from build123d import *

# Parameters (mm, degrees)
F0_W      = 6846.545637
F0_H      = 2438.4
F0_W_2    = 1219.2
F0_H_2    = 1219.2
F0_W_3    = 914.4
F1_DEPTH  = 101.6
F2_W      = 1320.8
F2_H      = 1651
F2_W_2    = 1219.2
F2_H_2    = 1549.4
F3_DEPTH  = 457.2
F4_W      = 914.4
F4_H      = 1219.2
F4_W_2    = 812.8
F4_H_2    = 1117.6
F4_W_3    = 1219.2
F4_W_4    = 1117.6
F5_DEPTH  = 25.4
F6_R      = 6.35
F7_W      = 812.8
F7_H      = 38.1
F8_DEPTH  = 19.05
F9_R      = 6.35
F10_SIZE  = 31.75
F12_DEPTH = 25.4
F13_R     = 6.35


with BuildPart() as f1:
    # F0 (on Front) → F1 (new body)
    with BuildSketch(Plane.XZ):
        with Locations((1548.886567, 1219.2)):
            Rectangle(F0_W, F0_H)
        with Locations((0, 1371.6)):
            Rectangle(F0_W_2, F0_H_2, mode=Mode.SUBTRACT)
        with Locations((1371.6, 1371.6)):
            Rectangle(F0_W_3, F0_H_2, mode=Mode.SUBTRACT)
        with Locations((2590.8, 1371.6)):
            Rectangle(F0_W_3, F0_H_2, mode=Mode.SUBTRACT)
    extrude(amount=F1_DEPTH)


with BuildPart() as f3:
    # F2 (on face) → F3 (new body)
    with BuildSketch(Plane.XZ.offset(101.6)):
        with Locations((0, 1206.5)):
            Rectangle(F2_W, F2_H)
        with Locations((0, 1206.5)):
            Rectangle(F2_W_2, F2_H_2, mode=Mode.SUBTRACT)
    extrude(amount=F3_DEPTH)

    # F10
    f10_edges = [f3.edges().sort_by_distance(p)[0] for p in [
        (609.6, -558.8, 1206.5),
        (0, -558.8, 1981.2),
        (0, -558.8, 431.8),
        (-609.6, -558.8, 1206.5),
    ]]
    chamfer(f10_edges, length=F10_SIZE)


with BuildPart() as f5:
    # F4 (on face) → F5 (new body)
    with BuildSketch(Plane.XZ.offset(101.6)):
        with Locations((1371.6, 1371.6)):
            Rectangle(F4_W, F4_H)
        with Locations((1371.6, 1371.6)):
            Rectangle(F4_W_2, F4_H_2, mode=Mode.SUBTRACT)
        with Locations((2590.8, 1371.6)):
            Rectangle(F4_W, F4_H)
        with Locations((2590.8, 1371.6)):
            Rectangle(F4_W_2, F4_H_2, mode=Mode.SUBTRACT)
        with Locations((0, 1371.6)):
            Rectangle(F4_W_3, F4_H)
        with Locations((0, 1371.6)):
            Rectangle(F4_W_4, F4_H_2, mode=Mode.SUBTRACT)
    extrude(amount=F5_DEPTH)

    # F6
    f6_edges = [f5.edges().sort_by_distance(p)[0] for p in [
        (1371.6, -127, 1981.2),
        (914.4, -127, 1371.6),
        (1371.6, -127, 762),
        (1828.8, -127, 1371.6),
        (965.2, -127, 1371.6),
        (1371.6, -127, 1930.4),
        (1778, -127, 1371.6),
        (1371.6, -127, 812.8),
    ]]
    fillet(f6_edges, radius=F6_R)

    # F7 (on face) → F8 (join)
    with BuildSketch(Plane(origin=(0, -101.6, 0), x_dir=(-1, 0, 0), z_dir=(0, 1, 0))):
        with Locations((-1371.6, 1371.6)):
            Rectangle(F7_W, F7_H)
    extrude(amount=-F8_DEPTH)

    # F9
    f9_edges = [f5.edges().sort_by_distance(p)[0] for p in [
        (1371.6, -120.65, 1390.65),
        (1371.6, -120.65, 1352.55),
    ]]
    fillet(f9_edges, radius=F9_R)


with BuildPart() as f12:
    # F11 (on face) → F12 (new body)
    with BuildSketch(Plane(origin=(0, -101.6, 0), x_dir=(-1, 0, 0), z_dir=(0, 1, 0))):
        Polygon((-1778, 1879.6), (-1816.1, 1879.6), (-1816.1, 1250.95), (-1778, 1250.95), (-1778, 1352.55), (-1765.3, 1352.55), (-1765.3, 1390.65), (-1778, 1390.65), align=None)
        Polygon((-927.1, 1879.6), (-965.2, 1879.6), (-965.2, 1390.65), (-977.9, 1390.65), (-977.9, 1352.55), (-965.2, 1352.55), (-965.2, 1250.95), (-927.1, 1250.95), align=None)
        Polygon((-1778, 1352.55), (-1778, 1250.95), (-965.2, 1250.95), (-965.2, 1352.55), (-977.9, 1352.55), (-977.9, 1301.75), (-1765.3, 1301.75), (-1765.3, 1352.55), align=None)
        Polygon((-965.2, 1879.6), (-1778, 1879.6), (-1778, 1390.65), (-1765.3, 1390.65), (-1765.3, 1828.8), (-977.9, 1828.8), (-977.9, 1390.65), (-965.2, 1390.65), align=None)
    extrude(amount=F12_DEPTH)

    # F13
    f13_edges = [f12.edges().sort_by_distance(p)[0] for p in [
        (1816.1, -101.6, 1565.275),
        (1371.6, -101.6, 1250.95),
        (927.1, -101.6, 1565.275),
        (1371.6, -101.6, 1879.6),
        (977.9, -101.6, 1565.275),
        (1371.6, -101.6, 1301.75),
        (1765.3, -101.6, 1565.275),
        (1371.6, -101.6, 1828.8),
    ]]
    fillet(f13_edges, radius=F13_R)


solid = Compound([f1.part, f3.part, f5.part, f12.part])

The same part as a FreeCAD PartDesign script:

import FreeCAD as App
import Part
import Sketcher
from FreeCAD import Vector
Q = App.Units.Quantity


def edges_at(feature, points):
    """Names of the edges that pass closest to the given points."""
    edges = feature.Shape.Edges
    near = lambda p: min(range(len(edges)), key=lambda i: edges[i].distToShape(Part.Vertex(*p))[0])
    return sorted({f"Edge{near(p) + 1}" for p in points})

doc = App.newDocument("Part")
body = doc.addObject("PartDesign::Body", "Body")

sketch1 = body.newObject("Sketcher::SketchObject", "Sketch")
sketch1.AttachmentSupport = (doc.getObject("XZ_Plane"), [""])
sketch1.MapMode = "FlatFace"
sketch1.addGeometry(Part.LineSegment(Vector(-1874, 2438, 0), Vector(-1874, 0, 0)), False)
sketch1.addGeometry(Part.LineSegment(Vector(-1874, 0, 0), Vector(4972, 0, 0)), False)
sketch1.addGeometry(Part.LineSegment(Vector(4972, 0, 0), Vector(4972, 2438, 0)), False)
sketch1.addGeometry(Part.LineSegment(Vector(4972, 2438, 0), Vector(-1874, 2438, 0)), False)
sketch1.addGeometry(Part.LineSegment(Vector(610, 762, 0), Vector(-610, 762, 0)), False)
sketch1.addGeometry(Part.LineSegment(Vector(-610, 762, 0), Vector(-610, 1981, 0)), False)
sketch1.addGeometry(Part.LineSegment(Vector(-610, 1981, 0), Vector(610, 1981, 0)), False)
sketch1.addGeometry(Part.LineSegment(Vector(610, 1981, 0), Vector(610, 762, 0)), False)
sketch1.addGeometry(Part.LineSegment(Vector(1829, 762, 0), Vector(914, 762, 0)), False)
sketch1.addGeometry(Part.LineSegment(Vector(914, 762, 0), Vector(914, 1981, 0)), False)
sketch1.addGeometry(Part.LineSegment(Vector(914, 1981, 0), Vector(1829, 1981, 0)), False)
sketch1.addGeometry(Part.LineSegment(Vector(1829, 1981, 0), Vector(1829, 762, 0)), False)
sketch1.addGeometry(Part.LineSegment(Vector(3048, 762, 0), Vector(2134, 762, 0)), False)
sketch1.addGeometry(Part.LineSegment(Vector(2134, 762, 0), Vector(2134, 1981, 0)), False)
sketch1.addGeometry(Part.LineSegment(Vector(2134, 1981, 0), Vector(3048, 1981, 0)), False)
sketch1.addGeometry(Part.LineSegment(Vector(3048, 1981, 0), Vector(3048, 762, 0)), False)
sketch1.addConstraint(Sketcher.Constraint("Coincident", 0, 2, 1, 1))
sketch1.addConstraint(Sketcher.Constraint("Coincident", 1, 2, 2, 1))
sketch1.addConstraint(Sketcher.Constraint("Coincident", 2, 2, 3, 1))
sketch1.addConstraint(Sketcher.Constraint("Coincident", 3, 2, 0, 1))
sketch1.addConstraint(Sketcher.Constraint("Coincident", 4, 2, 5, 1))
sketch1.addConstraint(Sketcher.Constraint("Coincident", 5, 2, 6, 1))
sketch1.addConstraint(Sketcher.Constraint("Coincident", 6, 2, 7, 1))
sketch1.addConstraint(Sketcher.Constraint("Coincident", 7, 2, 4, 1))
sketch1.addConstraint(Sketcher.Constraint("Coincident", 8, 2, 9, 1))
sketch1.addConstraint(Sketcher.Constraint("Coincident", 9, 2, 10, 1))
sketch1.addConstraint(Sketcher.Constraint("Coincident", 10, 2, 11, 1))
sketch1.addConstraint(Sketcher.Constraint("Coincident", 11, 2, 8, 1))
sketch1.addConstraint(Sketcher.Constraint("Coincident", 12, 2, 13, 1))
sketch1.addConstraint(Sketcher.Constraint("Coincident", 13, 2, 14, 1))
sketch1.addConstraint(Sketcher.Constraint("Coincident", 14, 2, 15, 1))
sketch1.addConstraint(Sketcher.Constraint("Coincident", 15, 2, 12, 1))
sketch1.addConstraint(Sketcher.Constraint("Vertical", 0))
sketch1.addConstraint(Sketcher.Constraint("Horizontal", 1))
sketch1.addConstraint(Sketcher.Constraint("Vertical", 2))
sketch1.addConstraint(Sketcher.Constraint("Horizontal", 3))
sketch1.addConstraint(Sketcher.Constraint("Horizontal", 4))
sketch1.addConstraint(Sketcher.Constraint("Vertical", 5))
sketch1.addConstraint(Sketcher.Constraint("Horizontal", 6))
sketch1.addConstraint(Sketcher.Constraint("Vertical", 7))
sketch1.addConstraint(Sketcher.Constraint("Horizontal", 8))
sketch1.addConstraint(Sketcher.Constraint("Vertical", 9))
sketch1.addConstraint(Sketcher.Constraint("Horizontal", 10))
sketch1.addConstraint(Sketcher.Constraint("Vertical", 11))
sketch1.addConstraint(Sketcher.Constraint("Horizontal", 12))
sketch1.addConstraint(Sketcher.Constraint("Vertical", 13))
sketch1.addConstraint(Sketcher.Constraint("Horizontal", 14))
sketch1.addConstraint(Sketcher.Constraint("Vertical", 15))
sketch1.addConstraint(Sketcher.Constraint("PointOnObject", 0, 2, -1))
sketch1.addConstraint(Sketcher.Constraint("Horizontal", 7, 2, 8, 2))
sketch1.addConstraint(Sketcher.Constraint("Horizontal", 6, 2, 9, 2))
sketch1.addConstraint(Sketcher.Constraint("Horizontal", 11, 2, 12, 2))
sketch1.addConstraint(Sketcher.Constraint("Horizontal", 10, 2, 13, 2))
sketch1.addConstraint(Sketcher.Constraint("Equal", 10, 12))
sketch1.addConstraint(Sketcher.Constraint("Equal", 6, 5))
sketch1.addConstraint(Sketcher.Constraint("DistanceX", 4, 2, 4, 1, Q("48 in")))
sketch1.addConstraint(Sketcher.Constraint("DistanceX", 8, 2, 8, 1, Q("36 in")))
sketch1.addConstraint(Sketcher.Constraint("DistanceY", 0, 2, 0, 1, Q("96 in")))
sketch1.addConstraint(Sketcher.Constraint("DistanceX", 4, 2, -1, 1, Q("24 in")))
sketch1.addConstraint(Sketcher.Constraint("DistanceY", -1, 1, 4, 2, Q("30 in")))
sketch1.addConstraint(Sketcher.Constraint("DistanceX", -1, 1, 8, 2, Q("36 in")))
sketch1.addConstraint(Sketcher.Constraint("DistanceX", -1, 1, 12, 2, Q("84 in")))
sketch1.addConstraint(Sketcher.Constraint("DistanceX", 1, 1, 1, 2, 6846.545637))
sketch1.addConstraint(Sketcher.Constraint("DistanceX", 0, 2, -1, 1, 1874.386252))
pad1 = body.newObject("PartDesign::Pad", "Pad")
pad1.Profile = sketch1
pad1.Length = Q("4 in")
body2 = doc.addObject("PartDesign::Body", "Body001")

sketch2 = body2.newObject("Sketcher::SketchObject", "Sketch001")
sketch2.AttachmentSupport = (doc.getObject("XZ_Plane001"), [""])
sketch2.MapMode = "FlatFace"
sketch2.AttachmentOffset = App.Placement(Vector(0, 0, 4 * 25.4), App.Rotation())
sketch2.addGeometry(Part.LineSegment(Vector(-660, 2032, 0), Vector(-660, 381, 0)), False)
sketch2.addGeometry(Part.LineSegment(Vector(-660, 381, 0), Vector(660, 381, 0)), False)
sketch2.addGeometry(Part.LineSegment(Vector(660, 381, 0), Vector(660, 2032, 0)), False)
sketch2.addGeometry(Part.LineSegment(Vector(660, 2032, 0), Vector(-660, 2032, 0)), False)
sketch2.addGeometry(Part.LineSegment(Vector(610, 432, 0), Vector(-610, 432, 0)), False)
sketch2.addGeometry(Part.LineSegment(Vector(-610, 432, 0), Vector(-610, 1981, 0)), False)
sketch2.addGeometry(Part.LineSegment(Vector(-610, 1981, 0), Vector(610, 1981, 0)), False)
sketch2.addGeometry(Part.LineSegment(Vector(610, 1981, 0), Vector(610, 432, 0)), False)
sketch2.addConstraint(Sketcher.Constraint("Coincident", 0, 2, 1, 1))
sketch2.addConstraint(Sketcher.Constraint("Coincident", 1, 2, 2, 1))
sketch2.addConstraint(Sketcher.Constraint("Coincident", 2, 2, 3, 1))
sketch2.addConstraint(Sketcher.Constraint("Coincident", 3, 2, 0, 1))
sketch2.addConstraint(Sketcher.Constraint("Coincident", 4, 2, 5, 1))
sketch2.addConstraint(Sketcher.Constraint("Coincident", 5, 2, 6, 1))
sketch2.addConstraint(Sketcher.Constraint("Coincident", 6, 2, 7, 1))
sketch2.addConstraint(Sketcher.Constraint("Coincident", 7, 2, 4, 1))
sketch2.addConstraint(Sketcher.Constraint("Vertical", 0))
sketch2.addConstraint(Sketcher.Constraint("Horizontal", 1))
sketch2.addConstraint(Sketcher.Constraint("Vertical", 2))
sketch2.addConstraint(Sketcher.Constraint("Horizontal", 3))
sketch2.addConstraint(Sketcher.Constraint("Horizontal", 4))
sketch2.addConstraint(Sketcher.Constraint("Vertical", 5))
sketch2.addConstraint(Sketcher.Constraint("Horizontal", 6))
sketch2.addConstraint(Sketcher.Constraint("Vertical", 7))
sketch2.addConstraint(Sketcher.Constraint("DistanceX", 1, 1, 1, 2, Q("52 in")))
sketch2.addConstraint(Sketcher.Constraint("DistanceX", 4, 2, 4, 1, Q("48 in")))
sketch2.addConstraint(Sketcher.Constraint("DistanceY", 0, 2, 0, 1, Q("65 in")))
sketch2.addConstraint(Sketcher.Constraint("DistanceY", 5, 1, 5, 2, Q("61 in")))
sketch2.addConstraint(Sketcher.Constraint("DistanceX", 0, 2, -1, 1, Q("26 in")))
sketch2.addConstraint(Sketcher.Constraint("DistanceY", -1, 1, 0, 2, Q("15 in")))
sketch2.addConstraint(Sketcher.Constraint("DistanceX", 4, 2, -1, 1, Q("24 in")))
sketch2.addConstraint(Sketcher.Constraint("DistanceY", -1, 1, 4, 2, Q("17 in")))
pad2 = body2.newObject("PartDesign::Pad", "Pad001")
pad2.Profile = sketch2
pad2.Length = Q("18 in")
doc.recompute()

chamfer = body2.newObject("PartDesign::Chamfer", "Chamfer")
chamfer.Base = (pad2, edges_at(pad2, [
    (609.6, -558.8, 1206.5),
    (0, -558.8, 1981.2),
    (0, -558.8, 431.8),
    (-609.6, -558.8, 1206.5),
]))
chamfer.Size = Q("1.25 in")
body3 = doc.addObject("PartDesign::Body", "Body002")
body3.AllowCompound = True

sketch3 = body3.newObject("Sketcher::SketchObject", "Sketch002")
sketch3.AttachmentSupport = (doc.getObject("XZ_Plane002"), [""])
sketch3.MapMode = "FlatFace"
sketch3.AttachmentOffset = App.Placement(Vector(0, 0, 4 * 25.4), App.Rotation())
sketch3.addGeometry(Part.LineSegment(Vector(914, 1981, 0), Vector(914, 762, 0)), False)
sketch3.addGeometry(Part.LineSegment(Vector(914, 762, 0), Vector(1829, 762, 0)), False)
sketch3.addGeometry(Part.LineSegment(Vector(1829, 762, 0), Vector(1829, 1981, 0)), False)
sketch3.addGeometry(Part.LineSegment(Vector(1829, 1981, 0), Vector(914, 1981, 0)), False)
sketch3.addGeometry(Part.LineSegment(Vector(1778, 813, 0), Vector(965, 813, 0)), False)
sketch3.addGeometry(Part.LineSegment(Vector(965, 813, 0), Vector(965, 1930, 0)), False)
sketch3.addGeometry(Part.LineSegment(Vector(965, 1930, 0), Vector(1778, 1930, 0)), False)
sketch3.addGeometry(Part.LineSegment(Vector(1778, 1930, 0), Vector(1778, 813, 0)), False)
sketch3.addGeometry(Part.LineSegment(Vector(2134, 1981, 0), Vector(2134, 762, 0)), False)
sketch3.addGeometry(Part.LineSegment(Vector(2134, 762, 0), Vector(3048, 762, 0)), False)
sketch3.addGeometry(Part.LineSegment(Vector(3048, 762, 0), Vector(3048, 1981, 0)), False)
sketch3.addGeometry(Part.LineSegment(Vector(3048, 1981, 0), Vector(2134, 1981, 0)), False)
sketch3.addGeometry(Part.LineSegment(Vector(2997, 813, 0), Vector(2184, 813, 0)), False)
sketch3.addGeometry(Part.LineSegment(Vector(2184, 813, 0), Vector(2184, 1930, 0)), False)
sketch3.addGeometry(Part.LineSegment(Vector(2184, 1930, 0), Vector(2997, 1930, 0)), False)
sketch3.addGeometry(Part.LineSegment(Vector(2997, 1930, 0), Vector(2997, 813, 0)), False)
sketch3.addGeometry(Part.LineSegment(Vector(-610, 1981, 0), Vector(-610, 762, 0)), False)
sketch3.addGeometry(Part.LineSegment(Vector(-610, 762, 0), Vector(610, 762, 0)), False)
sketch3.addGeometry(Part.LineSegment(Vector(610, 762, 0), Vector(610, 1981, 0)), False)
sketch3.addGeometry(Part.LineSegment(Vector(610, 1981, 0), Vector(-610, 1981, 0)), False)
sketch3.addGeometry(Part.LineSegment(Vector(559, 813, 0), Vector(-559, 813, 0)), False)
sketch3.addGeometry(Part.LineSegment(Vector(-559, 813, 0), Vector(-559, 1930, 0)), False)
sketch3.addGeometry(Part.LineSegment(Vector(-559, 1930, 0), Vector(559, 1930, 0)), False)
sketch3.addGeometry(Part.LineSegment(Vector(559, 1930, 0), Vector(559, 813, 0)), False)
sketch3.addConstraint(Sketcher.Constraint("Coincident", 0, 2, 1, 1))
sketch3.addConstraint(Sketcher.Constraint("Coincident", 1, 2, 2, 1))
sketch3.addConstraint(Sketcher.Constraint("Coincident", 2, 2, 3, 1))
sketch3.addConstraint(Sketcher.Constraint("Coincident", 3, 2, 0, 1))
sketch3.addConstraint(Sketcher.Constraint("Coincident", 4, 2, 5, 1))
sketch3.addConstraint(Sketcher.Constraint("Coincident", 5, 2, 6, 1))
sketch3.addConstraint(Sketcher.Constraint("Coincident", 6, 2, 7, 1))
sketch3.addConstraint(Sketcher.Constraint("Coincident", 7, 2, 4, 1))
sketch3.addConstraint(Sketcher.Constraint("Coincident", 8, 2, 9, 1))
sketch3.addConstraint(Sketcher.Constraint("Coincident", 9, 2, 10, 1))
sketch3.addConstraint(Sketcher.Constraint("Coincident", 10, 2, 11, 1))
sketch3.addConstraint(Sketcher.Constraint("Coincident", 11, 2, 8, 1))
sketch3.addConstraint(Sketcher.Constraint("Coincident", 12, 2, 13, 1))
sketch3.addConstraint(Sketcher.Constraint("Coincident", 13, 2, 14, 1))
sketch3.addConstraint(Sketcher.Constraint("Coincident", 14, 2, 15, 1))
sketch3.addConstraint(Sketcher.Constraint("Coincident", 15, 2, 12, 1))
sketch3.addConstraint(Sketcher.Constraint("Coincident", 16, 2, 17, 1))
sketch3.addConstraint(Sketcher.Constraint("Coincident", 17, 2, 18, 1))
sketch3.addConstraint(Sketcher.Constraint("Coincident", 18, 2, 19, 1))
sketch3.addConstraint(Sketcher.Constraint("Coincident", 19, 2, 16, 1))
sketch3.addConstraint(Sketcher.Constraint("Coincident", 20, 2, 21, 1))
sketch3.addConstraint(Sketcher.Constraint("Coincident", 21, 2, 22, 1))
sketch3.addConstraint(Sketcher.Constraint("Coincident", 22, 2, 23, 1))
sketch3.addConstraint(Sketcher.Constraint("Coincident", 23, 2, 20, 1))
sketch3.addConstraint(Sketcher.Constraint("Vertical", 0))
sketch3.addConstraint(Sketcher.Constraint("Horizontal", 1))
sketch3.addConstraint(Sketcher.Constraint("Vertical", 2))
sketch3.addConstraint(Sketcher.Constraint("Horizontal", 3))
sketch3.addConstraint(Sketcher.Constraint("Horizontal", 4))
sketch3.addConstraint(Sketcher.Constraint("Vertical", 5))
sketch3.addConstraint(Sketcher.Constraint("Horizontal", 6))
sketch3.addConstraint(Sketcher.Constraint("Vertical", 7))
sketch3.addConstraint(Sketcher.Constraint("Vertical", 8))
sketch3.addConstraint(Sketcher.Constraint("Horizontal", 9))
sketch3.addConstraint(Sketcher.Constraint("Vertical", 10))
sketch3.addConstraint(Sketcher.Constraint("Horizontal", 11))
sketch3.addConstraint(Sketcher.Constraint("Horizontal", 12))
sketch3.addConstraint(Sketcher.Constraint("Vertical", 13))
sketch3.addConstraint(Sketcher.Constraint("Horizontal", 14))
sketch3.addConstraint(Sketcher.Constraint("Vertical", 15))
sketch3.addConstraint(Sketcher.Constraint("Vertical", 16))
sketch3.addConstraint(Sketcher.Constraint("Horizontal", 17))
sketch3.addConstraint(Sketcher.Constraint("Vertical", 18))
sketch3.addConstraint(Sketcher.Constraint("Horizontal", 19))
sketch3.addConstraint(Sketcher.Constraint("Horizontal", 20))
sketch3.addConstraint(Sketcher.Constraint("Vertical", 21))
sketch3.addConstraint(Sketcher.Constraint("Horizontal", 22))
sketch3.addConstraint(Sketcher.Constraint("Vertical", 23))
sketch3.addConstraint(Sketcher.Constraint("Horizontal", 1, 2, 8, 2))
sketch3.addConstraint(Sketcher.Constraint("Horizontal", 3, 2, 10, 2))
sketch3.addConstraint(Sketcher.Constraint("Horizontal", 7, 2, 12, 2))
sketch3.addConstraint(Sketcher.Constraint("Horizontal", 6, 2, 13, 2))
sketch3.addConstraint(Sketcher.Constraint("Horizontal", 9, 2, 16, 2))
sketch3.addConstraint(Sketcher.Constraint("Horizontal", 11, 2, 18, 2))
sketch3.addConstraint(Sketcher.Constraint("Horizontal", 15, 2, 20, 2))
sketch3.addConstraint(Sketcher.Constraint("Horizontal", 14, 2, 21, 2))
sketch3.addConstraint(Sketcher.Constraint("Equal", 3, 9))
sketch3.addConstraint(Sketcher.Constraint("Equal", 6, 12))
sketch3.addConstraint(Sketcher.Constraint("Equal", 19, 0))
sketch3.addConstraint(Sketcher.Constraint("Equal", 22, 5))
sketch3.addConstraint(Sketcher.Constraint("DistanceX", 1, 1, 1, 2, Q("36 in")))
sketch3.addConstraint(Sketcher.Constraint("DistanceX", 4, 2, 4, 1, Q("32 in")))
sketch3.addConstraint(Sketcher.Constraint("DistanceX", 17, 1, 17, 2, Q("48 in")))
sketch3.addConstraint(Sketcher.Constraint("DistanceX", 20, 2, 20, 1, Q("44 in")))
sketch3.addConstraint(Sketcher.Constraint("DistanceX", -1, 1, 0, 2, Q("36 in")))
sketch3.addConstraint(Sketcher.Constraint("DistanceY", -1, 1, 0, 2, Q("30 in")))
sketch3.addConstraint(Sketcher.Constraint("DistanceX", -1, 1, 4, 2, Q("38 in")))
sketch3.addConstraint(Sketcher.Constraint("DistanceY", -1, 1, 4, 2, Q("32 in")))
sketch3.addConstraint(Sketcher.Constraint("DistanceX", -1, 1, 8, 2, Q("84 in")))
sketch3.addConstraint(Sketcher.Constraint("DistanceX", -1, 1, 12, 2, Q("86 in")))
sketch3.addConstraint(Sketcher.Constraint("DistanceX", 16, 2, -1, 1, Q("24 in")))
sketch3.addConstraint(Sketcher.Constraint("DistanceX", 20, 2, -1, 1, Q("22 in")))
pad3 = body3.newObject("PartDesign::Pad", "Pad002")
pad3.Profile = sketch3
pad3.Length = Q("1 in")
doc.recompute()

fillet = body3.newObject("PartDesign::Fillet", "Fillet")
fillet.Base = (pad3, edges_at(pad3, [
    (1371.6, -127, 1981.2),
    (914.4, -127, 1371.6),
    (1371.6, -127, 762),
    (1828.8, -127, 1371.6),
    (965.2, -127, 1371.6),
    (1371.6, -127, 1930.4),
    (1778, -127, 1371.6),
    (1371.6, -127, 812.8),
]))
fillet.Radius = Q("0.25 in")

sketch4 = body3.newObject("Sketcher::SketchObject", "Sketch003")
sketch4.AttachmentSupport = (doc.getObject("XZ_Plane002"), [""])
sketch4.MapMode = "FlatFace"
sketch4.AttachmentOffset = App.Placement(Vector(0, 0, 4 * 25.4), App.Rotation())
sketch4.addGeometry(Part.LineSegment(Vector(1778, 1391, 0), Vector(1778, 1353, 0)), False)
sketch4.addGeometry(Part.LineSegment(Vector(1778, 1353, 0), Vector(965, 1353, 0)), False)
sketch4.addGeometry(Part.LineSegment(Vector(965, 1353, 0), Vector(965, 1391, 0)), False)
sketch4.addGeometry(Part.LineSegment(Vector(965, 1391, 0), Vector(1778, 1391, 0)), False)
sketch4.addConstraint(Sketcher.Constraint("Coincident", 0, 2, 1, 1))
sketch4.addConstraint(Sketcher.Constraint("Coincident", 1, 2, 2, 1))
sketch4.addConstraint(Sketcher.Constraint("Coincident", 2, 2, 3, 1))
sketch4.addConstraint(Sketcher.Constraint("Coincident", 3, 2, 0, 1))
sketch4.addConstraint(Sketcher.Constraint("Vertical", 0))
sketch4.addConstraint(Sketcher.Constraint("Horizontal", 1))
sketch4.addConstraint(Sketcher.Constraint("Vertical", 2))
sketch4.addConstraint(Sketcher.Constraint("Horizontal", 3))
sketch4.addConstraint(Sketcher.Constraint("DistanceX", 1, 2, 1, 1, Q("32 in")))
sketch4.addConstraint(Sketcher.Constraint("DistanceY", 0, 2, 0, 1, Q("1.5 in")))
sketch4.addConstraint(Sketcher.Constraint("DistanceX", -1, 1, 0, 2, Q("70 in")))
sketch4.addConstraint(Sketcher.Constraint("DistanceY", -1, 1, 0, 2, Q("53.25 in")))
pad4 = body3.newObject("PartDesign::Pad", "Pad003")
pad4.Profile = sketch4
pad4.Length = Q("0.75 in")
doc.recompute()

fillet2 = body3.newObject("PartDesign::Fillet", "Fillet001")
fillet2.Base = (pad4, edges_at(pad4, [(1371.6, -120.65, 1390.65), (1371.6, -120.65, 1352.55)]))
fillet2.Radius = Q("0.25 in")
body4 = doc.addObject("PartDesign::Body", "Body003")

sketch5 = body4.newObject("Sketcher::SketchObject", "Sketch004")
sketch5.AttachmentSupport = (doc.getObject("XZ_Plane003"), [""])
sketch5.MapMode = "FlatFace"
sketch5.AttachmentOffset = App.Placement(Vector(0, 0, 4 * 25.4), App.Rotation())
sketch5.addGeometry(Part.LineSegment(Vector(1816, 1880, 0), Vector(1816, 1251, 0)), False)
sketch5.addGeometry(Part.LineSegment(Vector(1816, 1251, 0), Vector(927, 1251, 0)), False)
sketch5.addGeometry(Part.LineSegment(Vector(927, 1251, 0), Vector(927, 1880, 0)), False)
sketch5.addGeometry(Part.LineSegment(Vector(927, 1880, 0), Vector(1816, 1880, 0)), False)
sketch5.addGeometry(Part.LineSegment(Vector(978, 1302, 0), Vector(1765, 1302, 0)), False)
sketch5.addGeometry(Part.LineSegment(Vector(1765, 1302, 0), Vector(1765, 1829, 0)), False)
sketch5.addGeometry(Part.LineSegment(Vector(1765, 1829, 0), Vector(978, 1829, 0)), False)
sketch5.addGeometry(Part.LineSegment(Vector(978, 1829, 0), Vector(978, 1302, 0)), False)
sketch5.addConstraint(Sketcher.Constraint("Coincident", 0, 2, 1, 1))
sketch5.addConstraint(Sketcher.Constraint("Coincident", 1, 2, 2, 1))
sketch5.addConstraint(Sketcher.Constraint("Coincident", 2, 2, 3, 1))
sketch5.addConstraint(Sketcher.Constraint("Coincident", 3, 2, 0, 1))
sketch5.addConstraint(Sketcher.Constraint("Coincident", 4, 2, 5, 1))
sketch5.addConstraint(Sketcher.Constraint("Coincident", 5, 2, 6, 1))
sketch5.addConstraint(Sketcher.Constraint("Coincident", 6, 2, 7, 1))
sketch5.addConstraint(Sketcher.Constraint("Coincident", 7, 2, 4, 1))
sketch5.addConstraint(Sketcher.Constraint("Vertical", 0))
sketch5.addConstraint(Sketcher.Constraint("Horizontal", 1))
sketch5.addConstraint(Sketcher.Constraint("Vertical", 2))
sketch5.addConstraint(Sketcher.Constraint("Horizontal", 3))
sketch5.addConstraint(Sketcher.Constraint("Horizontal", 4))
sketch5.addConstraint(Sketcher.Constraint("Vertical", 5))
sketch5.addConstraint(Sketcher.Constraint("Horizontal", 6))
sketch5.addConstraint(Sketcher.Constraint("Vertical", 7))
sketch5.addConstraint(Sketcher.Constraint("DistanceX", 1, 2, 1, 1, Q("35 in")))
sketch5.addConstraint(Sketcher.Constraint("DistanceX", 4, 1, 4, 2, Q("31 in")))
sketch5.addConstraint(Sketcher.Constraint("DistanceY", -1, 1, 2, 2, Q("74 in")))
sketch5.addConstraint(Sketcher.Constraint("DistanceY", -1, 1, 5, 2, Q("72 in")))
sketch5.addConstraint(Sketcher.Constraint("DistanceX", 4, 2, 0, 2, Q("2 in")))
sketch5.addConstraint(Sketcher.Constraint("DistanceY", 0, 2, 4, 2, Q("2 in")))
sketch5.addConstraint(Sketcher.Constraint("DistanceY", 0, 2, 0, 1, Q("24.75 in")))
sketch5.addConstraint(Sketcher.Constraint("DistanceX", -1, 1, 0, 2, Q("71.5 in")))
pad5 = body4.newObject("PartDesign::Pad", "Pad004")
pad5.Profile = sketch5
pad5.Length = Q("1 in")
pad5.Reversed = True
doc.recompute()

fillet3 = body4.newObject("PartDesign::Fillet", "Fillet002")
fillet3.Base = (pad5, edges_at(pad5, [
    (1816.1, -101.6, 1565.275),
    (1371.6, -101.6, 1250.95),
    (927.1, -101.6, 1565.275),
    (1371.6, -101.6, 1879.6),
    (977.9, -101.6, 1565.275),
    (1371.6, -101.6, 1301.75),
    (1765.3, -101.6, 1565.275),
    (1371.6, -101.6, 1828.8),
]))
fillet3.Radius = Q("0.25 in")

doc.recompute()
